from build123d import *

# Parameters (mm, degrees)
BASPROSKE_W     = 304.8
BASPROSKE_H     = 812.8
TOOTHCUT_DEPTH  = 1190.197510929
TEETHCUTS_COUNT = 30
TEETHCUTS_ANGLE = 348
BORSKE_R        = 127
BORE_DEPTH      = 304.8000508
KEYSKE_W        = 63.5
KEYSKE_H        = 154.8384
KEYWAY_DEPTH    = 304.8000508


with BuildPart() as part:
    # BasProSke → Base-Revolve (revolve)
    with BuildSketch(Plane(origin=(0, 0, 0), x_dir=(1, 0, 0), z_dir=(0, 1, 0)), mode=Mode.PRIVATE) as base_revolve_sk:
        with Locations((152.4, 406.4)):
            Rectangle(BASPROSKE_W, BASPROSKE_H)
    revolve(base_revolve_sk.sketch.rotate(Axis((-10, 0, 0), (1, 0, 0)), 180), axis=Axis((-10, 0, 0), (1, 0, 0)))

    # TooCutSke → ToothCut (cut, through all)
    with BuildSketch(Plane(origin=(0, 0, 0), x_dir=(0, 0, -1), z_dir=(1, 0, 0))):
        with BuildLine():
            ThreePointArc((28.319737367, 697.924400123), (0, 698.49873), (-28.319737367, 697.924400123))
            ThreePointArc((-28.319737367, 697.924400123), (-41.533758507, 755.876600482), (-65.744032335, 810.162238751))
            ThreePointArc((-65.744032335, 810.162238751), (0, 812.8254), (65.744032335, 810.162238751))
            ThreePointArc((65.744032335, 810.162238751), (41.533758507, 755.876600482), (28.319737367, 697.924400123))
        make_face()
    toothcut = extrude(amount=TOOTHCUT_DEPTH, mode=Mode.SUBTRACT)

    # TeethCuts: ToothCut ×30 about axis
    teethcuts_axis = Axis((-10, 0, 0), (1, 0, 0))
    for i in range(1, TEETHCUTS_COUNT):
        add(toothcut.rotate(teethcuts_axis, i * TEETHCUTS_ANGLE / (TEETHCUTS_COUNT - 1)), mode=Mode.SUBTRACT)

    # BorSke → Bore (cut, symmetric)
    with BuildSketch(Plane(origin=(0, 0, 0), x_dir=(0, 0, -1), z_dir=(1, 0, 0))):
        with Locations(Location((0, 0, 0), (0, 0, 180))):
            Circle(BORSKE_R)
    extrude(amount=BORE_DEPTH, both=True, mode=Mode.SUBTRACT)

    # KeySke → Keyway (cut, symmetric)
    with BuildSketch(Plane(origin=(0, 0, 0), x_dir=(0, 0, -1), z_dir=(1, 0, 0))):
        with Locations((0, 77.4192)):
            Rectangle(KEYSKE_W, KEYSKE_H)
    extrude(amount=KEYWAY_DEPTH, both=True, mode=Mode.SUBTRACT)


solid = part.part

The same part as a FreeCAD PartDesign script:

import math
import FreeCAD as App
import Part
import Sketcher
Q = App.Units.Quantity


def add_polygon(sketch, points):
    """Adds a closed chain of lines whose ends are joined by coincident constraints."""
    first, n = sketch.GeometryCount, len(points)
    for a, b in zip(points, points[1:] + points[:1]):
        sketch.addGeometry(Part.LineSegment(App.Vector(*a, 0), App.Vector(*b, 0)), False)
    for i in range(n):
        sketch.addConstraint(Sketcher.Constraint("Coincident", first + i, 2, first + (i + 1) % n, 1))

doc = App.newDocument("Part")
params = doc.addObject("Spreadsheet::Sheet", "Params")
for row, (alias, value) in enumerate([
    ("sketch1_width", "12 in"),
    ("sketch1_height", "32 in"),
    ("revolution_angle", "360 deg"),
    ("sketch2_radius", "12 in"),
    ("sketch2_radius2", "32.001 in"),
    ("sketch3_diameter", "10 in"),
    ("pocket2_length", "609.600102 mm"),
    ("sketch4_height", "2.5 in"),
    ("sketch4_width", "6.096 in"),
    ("pocket3_length", "609.600102 mm"),
], start=1):
    params.set(f"A{row}", alias)
    params.set(f"B{row}", "=" + value)
    params.setAlias(f"B{row}", alias)

body = doc.addObject("PartDesign::Body", "Body")

sketch1 = body.newObject("Sketcher::SketchObject", "Sketch")
sketch1.AttachmentSupport = (doc.getObject("XZ_Plane"), [""])
sketch1.MapMode = "FlatFace"
add_polygon(sketch1, [(0, -813), (0, 0), (305, 0), (305, -813)])
sketch1.addConstraint(Sketcher.Constraint("Vertical", 0))
sketch1.addConstraint(Sketcher.Constraint("Horizontal", 1))
sketch1.addConstraint(Sketcher.Constraint("Vertical", 2))
sketch1.addConstraint(Sketcher.Constraint("Horizontal", 3))
sketch1.addConstraint(Sketcher.Constraint("Coincident", 0, 2, -1, 1))
sketch1.addConstraint(Sketcher.Constraint("DistanceX", 1, 1, 1, 2, Q("12 in")))
sketch1.addConstraint(Sketcher.Constraint("DistanceY", 0, 1, 0, 2, Q("32 in")))
sketch1.setExpression("Constraints[9]", "Params.sketch1_width")
sketch1.setExpression("Constraints[10]", "Params.sketch1_height")
revolution = body.newObject("PartDesign::Revolution", "Revolution")
revolution.Profile = sketch1
revolution.ReferenceAxis = (sketch1, ["H_Axis"])
revolution.setExpression("Angle", "Params.revolution_angle")

sketch2 = body.newObject("Sketcher::SketchObject", "Sketch001")
sketch2.AttachmentSupport = (doc.getObject("YZ_Plane"), [""])
sketch2.MapMode = "FlatFace"
sketch2.addGeometry(Part.ArcOfCircle(Part.Circle(App.Vector(0, 0, 0), App.Vector(0, 0, 1), 698), math.radians(-2.32), math.radians(2.32)), False)
sketch2.addGeometry(Part.ArcOfCircle(Part.Circle(App.Vector(659, -331, 0), App.Vector(0, 0, 1), 305), math.radians(60), math.radians(83)), False)
sketch2.addGeometry(Part.ArcOfCircle(Part.Circle(App.Vector(0, 0, 0), App.Vector(0, 0, 1), 813), math.radians(-4.64), math.radians(4.64)), False)
sketch2.addGeometry(Part.ArcOfCircle(Part.Circle(App.Vector(659, 331, 0), App.Vector(0, 0, 1), 305), math.radians(-83), math.radians(-60)), False)
sketch2.addConstraint(Sketcher.Constraint("Coincident", 0, 1, 1, 2))
sketch2.addConstraint(Sketcher.Constraint("Coincident", 1, 1, 2, 1))
sketch2.addConstraint(Sketcher.Constraint("Coincident", 2, 2, 3, 2))
sketch2.addConstraint(Sketcher.Constraint("Coincident", 3, 1, 0, 2))
sketch2.addConstraint(Sketcher.Constraint("Coincident", 0, 3, -1, 1))
sketch2.addConstraint(Sketcher.Constraint("Coincident", 2, 3, -1, 1))
sketch2.addConstraint(Sketcher.Constraint("Equal", 1, 3))
sketch2.addConstraint(Sketcher.Constraint("Symmetric", 1, 3, 3, 3, -1))
sketch2.addConstraint(Sketcher.Constraint("Radius", 1, Q("12 in")))
sketch2.addConstraint(Sketcher.Constraint("Radius", 2, Q("32.001 in")))
sketch2.addConstraint(Sketcher.Constraint("Radius", 0, Q("698.49873 mm")))
sketch2.addConstraint(Sketcher.Constraint("DistanceX", -1, 1, 1, 3, Q("659.463292 mm")))
sketch2.addConstraint(Sketcher.Constraint("DistanceY", 1, 1, 3, 3, Q("396.42743 mm")))
sketch2.setExpression("Constraints[8]", "Params.sketch2_radius")
sketch2.setExpression("Constraints[9]", "Params.sketch2_radius2")
pocket1 = body.newObject("PartDesign::Pocket", "Pocket")
pocket1.Profile = sketch2
pocket1.Type = "ThroughAll"
pocket1.Reversed = True
doc.recompute()

polarpattern = body.newObject("PartDesign::PolarPattern", "PolarPattern")
polarpattern.Originals = [pocket1]
polarpattern.Axis = (doc.getObject("X_Axis"), [""])
polarpattern.Angle = 360
polarpattern.Occurrences = 30
body.Tip = polarpattern

sketch3 = body.newObject("Sketcher::SketchObject", "Sketch002")
sketch3.AttachmentSupport = (doc.getObject("YZ_Plane"), [""])
sketch3.MapMode = "FlatFace"
sketch3.addGeometry(Part.Circle(App.Vector(0, 0, 0), App.Vector(0, 0, 1), 127), False)
sketch3.addConstraint(Sketcher.Constraint("Coincident", 0, 3, -1, 1))
sketch3.addConstraint(Sketcher.Constraint("Diameter", 0, Q("10 in")))
sketch3.setExpression("Constraints[1]", "Params.sketch3_diameter")
pocket2 = body.newObject("PartDesign::Pocket", "Pocket001")
pocket2.Profile = sketch3
pocket2.setExpression("Length", "Params.pocket2_length")
pocket2.Midplane = True

sketch4 = body.newObject("Sketcher::SketchObject", "Sketch003")
sketch4.AttachmentSupport = (doc.getObject("YZ_Plane"), [""])
sketch4.MapMode = "FlatFace"
add_polygon(sketch4, [(155, 32), (0, 32), (0, -32), (155, -32)])
sketch4.addConstraint(Sketcher.Constraint("Horizontal", 0))
sketch4.addConstraint(Sketcher.Constraint("Vertical", 1))
sketch4.addConstraint(Sketcher.Constraint("Horizontal", 2))
sketch4.addConstraint(Sketcher.Constraint("Vertical", 3))
sketch4.addConstraint(Sketcher.Constraint("Symmetric", 0, 2, 1, 2, -1, 1))
sketch4.addConstraint(Sketcher.Constraint("DistanceY", 1, 2, 1, 1, Q("2.5 in")))
sketch4.addConstraint(Sketcher.Constraint("DistanceX", 0, 2, 0, 1, Q("6.096 in")))
sketch4.setExpression("Constraints[9]", "Params.sketch4_height")
sketch4.setExpression("Constraints[10]", "Params.sketch4_width")
pocket3 = body.newObject("PartDesign::Pocket", "Pocket002")
pocket3.Profile = sketch4
pocket3.setExpression("Length", "Params.pocket3_length")
pocket3.Midplane = True

doc.recompute()
